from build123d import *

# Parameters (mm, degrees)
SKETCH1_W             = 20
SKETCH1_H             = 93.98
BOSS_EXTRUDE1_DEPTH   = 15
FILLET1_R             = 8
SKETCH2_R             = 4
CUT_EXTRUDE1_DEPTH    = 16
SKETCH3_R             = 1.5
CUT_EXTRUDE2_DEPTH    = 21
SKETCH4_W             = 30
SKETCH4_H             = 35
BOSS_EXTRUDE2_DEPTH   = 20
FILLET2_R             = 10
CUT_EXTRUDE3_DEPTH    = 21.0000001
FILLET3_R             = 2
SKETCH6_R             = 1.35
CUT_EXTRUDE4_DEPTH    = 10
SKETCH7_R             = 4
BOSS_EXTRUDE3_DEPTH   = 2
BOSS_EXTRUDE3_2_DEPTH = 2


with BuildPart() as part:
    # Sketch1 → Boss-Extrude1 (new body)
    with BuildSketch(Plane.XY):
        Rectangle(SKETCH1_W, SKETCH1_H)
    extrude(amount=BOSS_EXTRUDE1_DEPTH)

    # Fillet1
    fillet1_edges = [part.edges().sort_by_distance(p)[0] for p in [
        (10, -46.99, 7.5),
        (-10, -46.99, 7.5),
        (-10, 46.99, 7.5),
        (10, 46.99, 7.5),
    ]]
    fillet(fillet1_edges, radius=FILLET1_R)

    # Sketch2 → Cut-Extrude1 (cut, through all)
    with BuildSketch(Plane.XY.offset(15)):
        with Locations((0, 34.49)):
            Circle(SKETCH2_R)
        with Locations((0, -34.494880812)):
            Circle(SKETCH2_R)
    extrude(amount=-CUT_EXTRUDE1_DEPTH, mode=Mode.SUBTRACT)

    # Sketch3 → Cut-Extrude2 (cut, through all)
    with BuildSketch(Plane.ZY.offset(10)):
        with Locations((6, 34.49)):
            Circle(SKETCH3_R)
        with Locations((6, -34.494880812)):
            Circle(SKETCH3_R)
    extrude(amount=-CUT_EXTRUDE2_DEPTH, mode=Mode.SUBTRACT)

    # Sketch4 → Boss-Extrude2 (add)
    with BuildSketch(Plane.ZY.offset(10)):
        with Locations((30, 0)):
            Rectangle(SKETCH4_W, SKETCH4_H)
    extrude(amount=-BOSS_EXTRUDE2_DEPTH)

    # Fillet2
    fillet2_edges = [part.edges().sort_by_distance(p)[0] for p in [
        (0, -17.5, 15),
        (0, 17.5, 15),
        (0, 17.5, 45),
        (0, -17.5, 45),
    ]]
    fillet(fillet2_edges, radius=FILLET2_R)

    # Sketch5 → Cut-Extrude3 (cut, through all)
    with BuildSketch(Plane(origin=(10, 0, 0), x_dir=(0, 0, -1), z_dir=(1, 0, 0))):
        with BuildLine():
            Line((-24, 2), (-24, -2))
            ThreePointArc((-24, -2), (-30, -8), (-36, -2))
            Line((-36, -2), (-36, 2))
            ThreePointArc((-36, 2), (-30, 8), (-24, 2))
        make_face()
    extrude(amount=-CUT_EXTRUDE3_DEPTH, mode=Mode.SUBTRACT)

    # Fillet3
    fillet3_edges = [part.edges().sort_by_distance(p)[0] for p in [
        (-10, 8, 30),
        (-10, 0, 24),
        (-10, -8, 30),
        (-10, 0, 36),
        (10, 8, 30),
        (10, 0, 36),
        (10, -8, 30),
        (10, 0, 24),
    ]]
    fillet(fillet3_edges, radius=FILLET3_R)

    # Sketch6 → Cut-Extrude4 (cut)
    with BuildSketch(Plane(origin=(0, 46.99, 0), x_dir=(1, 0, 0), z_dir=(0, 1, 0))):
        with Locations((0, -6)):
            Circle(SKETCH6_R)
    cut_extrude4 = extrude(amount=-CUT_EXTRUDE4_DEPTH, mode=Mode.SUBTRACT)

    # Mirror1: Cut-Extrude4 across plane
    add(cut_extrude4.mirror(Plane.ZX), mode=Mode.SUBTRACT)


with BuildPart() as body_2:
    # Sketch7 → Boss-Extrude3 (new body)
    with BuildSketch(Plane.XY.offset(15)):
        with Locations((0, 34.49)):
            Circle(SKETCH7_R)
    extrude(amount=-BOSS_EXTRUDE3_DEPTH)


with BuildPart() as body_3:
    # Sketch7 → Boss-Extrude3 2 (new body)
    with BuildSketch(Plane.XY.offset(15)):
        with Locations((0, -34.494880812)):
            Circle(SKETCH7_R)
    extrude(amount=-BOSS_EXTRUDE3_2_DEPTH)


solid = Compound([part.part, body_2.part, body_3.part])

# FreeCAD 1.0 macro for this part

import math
import FreeCAD as App
import Part
import Sketcher


def edges_at(feature, points):
    """Names of the edges that pass closest to the given points."""
    edges = feature.Shape.Edges
    near = lambda p: min(range(len(edges)), key=lambda i: edges[i].distToShape(Part.Vertex(*p))[0])
    return sorted({f"Edge{near(p) + 1}" for p in points})

doc = App.newDocument("Part")
body = doc.addObject("PartDesign::Body", "Body")

# Sketch on XY plane
sketch1 = body.newObject("Sketcher::SketchObject", "Sketch")
sketch1.AttachmentSupport = (doc.getObject("XY_Plane"), [""])
sketch1.MapMode = "FlatFace"
sketch1.addGeometry([
    Part.LineSegment(App.Vector(-10, 47, 0), App.Vector(-10, -47, 0)),
    Part.LineSegment(App.Vector(-10, -47, 0), App.Vector(10, -47, 0)),
    Part.LineSegment(App.Vector(10, -47, 0), App.Vector(10, 47, 0)),
    Part.LineSegment(App.Vector(10, 47, 0), App.Vector(-10, 47, 0)),
], False)
sketch1.addConstraint([
    Sketcher.Constraint("Coincident", 0, 2, 1, 1),
    Sketcher.Constraint("Coincident", 1, 2, 2, 1),
    Sketcher.Constraint("Coincident", 2, 2, 3, 1),
    Sketcher.Constraint("Coincident", 3, 2, 0, 1),
    Sketcher.Constraint("Vertical", 0),
    Sketcher.Constraint("Horizontal", 1),
    Sketcher.Constraint("Vertical", 2),
    Sketcher.Constraint("Horizontal", 3),
    Sketcher.Constraint("Symmetric", 0, 2, 2, 2, -1, 1),
    Sketcher.Constraint("DistanceX", 1, 1, 1, 2, 20.0),
    Sketcher.Constraint("DistanceY", 0, 2, 0, 1, 93.98),
])
pad1 = body.newObject("PartDesign::Pad", "Pad")
pad1.Profile = sketch1
pad1.Length = 15
doc.recompute()

fillet = body.newObject("PartDesign::Fillet", "Fillet")
fillet.Base = (pad1, edges_at(pad1, [
    (10, -46.99, 7.5),
    (-10, -46.99, 7.5),
    (-10, 46.99, 7.5),
    (10, 46.99, 7.5),
]))
fillet.Radius = 8

# Sketch on XY plane
sketch2 = body.newObject("Sketcher::SketchObject", "Sketch001")
sketch2.AttachmentSupport = (doc.getObject("XY_Plane"), [""])
sketch2.MapMode = "FlatFace"
sketch2.AttachmentOffset = App.Placement(App.Vector(0, 0, 15), App.Rotation())
sketch2.addGeometry([
    Part.Circle(App.Vector(0, 34.5, 0), App.Vector(0, 0, 1), 4),
    Part.Circle(App.Vector(0, -34.5, 0), App.Vector(0, 0, 1), 4),
], False)
sketch2.addConstraint([
    Sketcher.Constraint("Equal", 0, 1),
    Sketcher.Constraint("PointOnObject", 0, 3, -2),
    Sketcher.Constraint("PointOnObject", 1, 3, -2),
    Sketcher.Constraint("Diameter", 0, 8.0),
    Sketcher.Constraint("DistanceY", -1, 1, 0, 3, 34.49),
    Sketcher.Constraint("DistanceY", 1, 3, -1, 1, 34.494881),
])
pocket1 = body.newObject("PartDesign::Pocket", "Pocket")
pocket1.Profile = sketch2
pocket1.Type = "ThroughAll"

# Sketch on YZ plane
sketch3 = body.newObject("Sketcher::SketchObject", "Sketch002")
sketch3.AttachmentSupport = (doc.getObject("YZ_Plane"), [""])
sketch3.MapMode = "FlatFace"
sketch3.AttachmentOffset = App.Placement(App.Vector(0, 0, -10), App.Rotation())
sketch3.addGeometry([
    Part.Circle(App.Vector(34.5, 6, 0), App.Vector(0, 0, 1), 1.5),
    Part.Circle(App.Vector(-34.5, 6, 0), App.Vector(0, 0, 1), 1.5),
], False)
sketch3.addConstraint([
    Sketcher.Constraint("Equal", 0, 1),
    Sketcher.Constraint("Horizontal", 0, 3, 1, 3),
    Sketcher.Constraint("Diameter", 0, 3.0),
    Sketcher.Constraint("DistanceY", -1, 1, 0, 3, 6.0),
    Sketcher.Constraint("DistanceX", -1, 1, 0, 3, 34.49),
    Sketcher.Constraint("DistanceX", 1, 3, -1, 1, 34.494881),
])
pocket2 = body.newObject("PartDesign::Pocket", "Pocket001")
pocket2.Profile = sketch3
pocket2.Type = "ThroughAll"
pocket2.Reversed = True

# Sketch on YZ plane
sketch4 = body.newObject("Sketcher::SketchObject", "Sketch003")
sketch4.AttachmentSupport = (doc.getObject("YZ_Plane"), [""])
sketch4.MapMode = "FlatFace"
sketch4.AttachmentOffset = App.Placement(App.Vector(0, 0, -10), App.Rotation())
sketch4.addGeometry([
    Part.LineSegment(App.Vector(18, 15, 0), App.Vector(-18, 15, 0)),
    Part.LineSegment(App.Vector(-18, 15, 0), App.Vector(-18, 45, 0)),
    Part.LineSegment(App.Vector(-18, 45, 0), App.Vector(18, 45, 0)),
    Part.LineSegment(App.Vector(18, 45, 0), App.Vector(18, 15, 0)),
], False)
sketch4.addConstraint([
    Sketcher.Constraint("Coincident", 0, 2, 1, 1),
    Sketcher.Constraint("Coincident", 1, 2, 2, 1),
    Sketcher.Constraint("Coincident", 2, 2, 3, 1),
    Sketcher.Constraint("Coincident", 3, 2, 0, 1),
    Sketcher.Constraint("Horizontal", 0),
    Sketcher.Constraint("Vertical", 1),
    Sketcher.Constraint("Horizontal", 2),
    Sketcher.Constraint("Vertical", 3),
    Sketcher.Constraint("DistanceX", 0, 2, 0, 1, 35.0),
    Sketcher.Constraint("DistanceY", 1, 1, 1, 2, 30.0),
    Sketcher.Constraint("DistanceY", -1, 1, 0, 2, 15.0),
    Sketcher.Constraint("DistanceX", 0, 2, -1, 1, 17.5),
])
pad2 = body.newObject("PartDesign::Pad", "Pad001")
pad2.Profile = sketch4
pad2.Length = 20
doc.recompute()

fillet2 = body.newObject("PartDesign::Fillet", "Fillet001")
fillet2.Base = (pad2, edges_at(pad2, [
    (0, -17.5, 15),
    (0, 17.5, 15),
    (0, 17.5, 45),
    (0, -17.5, 45),
]))
fillet2.Radius = 10

# Sketch on YZ plane
sketch5 = body.newObject("Sketcher::SketchObject", "Sketch004")
sketch5.AttachmentSupport = (doc.getObject("YZ_Plane"), [""])
sketch5.MapMode = "FlatFace"
sketch5.AttachmentOffset = App.Placement(App.Vector(0, 0, 10), App.Rotation())
sketch5.addGeometry([
    Part.LineSegment(App.Vector(-2, 24, 0), App.Vector(2, 24, 0)),
    Part.ArcOfCircle(Part.Circle(App.Vector(2, 30, 0), App.Vector(0, 0, 1), 6), math.radians(-90), math.radians(90)),
    Part.LineSegment(App.Vector(2, 36, 0), App.Vector(-2, 36, 0)),
    Part.ArcOfCircle(Part.Circle(App.Vector(-2, 30, 0), App.Vector(0, 0, 1), 6), math.radians(90), math.radians(270)),
], False)
sketch5.addConstraint([
    Sketcher.Constraint("Tangent", 0, 2, 1, 1),
    Sketcher.Constraint("Tangent", 1, 2, 2, 1),
    Sketcher.Constraint("Tangent", 2, 2, 3, 1),
    Sketcher.Constraint("Tangent", 3, 2, 0, 1),
    Sketcher.Constraint("Horizontal", 0),
    Sketcher.Constraint("Horizontal", 2),
    Sketcher.Constraint("Radius", 1, 6.0),
    Sketcher.Constraint("DistanceX", 0, 1, 0, 2, 4.0),
    Sketcher.Constraint("DistanceX", -1, 1, 1, 3, 2.0),
    Sketcher.Constraint("DistanceY", -1, 1, 1, 3, 30.0),
])
pocket3 = body.newObject("PartDesign::Pocket", "Pocket002")
pocket3.Profile = sketch5
pocket3.Type = "ThroughAll"
doc.recompute()

fillet3 = body.newObject("PartDesign::Fillet", "Fillet002")
fillet3.Base = (pocket3, edges_at(pocket3, [
    (-10, 8, 30),
    (-10, 0, 24),
    (-10, -8, 30),
    (-10, 0, 36),
    (10, 8, 30),
    (10, 0, 36),
    (10, -8, 30),
    (10, 0, 24),
]))
fillet3.Radius = 2

# Sketch on XZ plane
sketch6 = body.newObject("Sketcher::SketchObject", "Sketch005")
sketch6.AttachmentSupport = (doc.getObject("XZ_Plane"), [""])
sketch6.MapMode = "FlatFace"
sketch6.AttachmentOffset = App.Placement(App.Vector(0, 0, -46.99), App.Rotation())
sketch6.addGeometry(Part.Circle(App.Vector(0, 6, 0), App.Vector(0, 0, 1), 1.4), False)
sketch6.addConstraint([
    Sketcher.Constraint("PointOnObject", 0, 3, -2),
    Sketcher.Constraint("Diameter", 0, 2.7),
    Sketcher.Constraint("DistanceY", -1, 1, 0, 3, 6.0),
])
pocket4 = body.newObject("PartDesign::Pocket", "Pocket003")
pocket4.Profile = sketch6
pocket4.Length = 10
pocket4.Reversed = True
doc.recompute()

mirrored = body.newObject("PartDesign::Mirrored", "Mirrored")
mirrored.Originals = [pocket4]
mirrored.MirrorPlane = (doc.getObject("XZ_Plane"), [""])
body.Tip = mirrored
body2 = doc.addObject("PartDesign::Body", "Body001")

# Sketch on XY plane
sketch7 = body2.newObject("Sketcher::SketchObject", "Sketch006")
sketch7.AttachmentSupport = (doc.getObject("XY_Plane001"), [""])
sketch7.MapMode = "FlatFace"
sketch7.AttachmentOffset = App.Placement(App.Vector(0, 0, 15), App.Rotation())
sketch7.addGeometry(Part.Circle(App.Vector(0, 34.5, 0), App.Vector(0, 0, 1), 4), False)
sketch7.addConstraint([
    Sketcher.Constraint("PointOnObject", 0, 3, -2),
    Sketcher.Constraint("Diameter", 0, 8.0),
    Sketcher.Constraint("DistanceY", -1, 1, 0, 3, 34.49),
])
pad3 = body2.newObject("PartDesign::Pad", "Pad002")
pad3.Profile = sketch7
pad3.Length = 2
pad3.Reversed = True
body3 = doc.addObject("PartDesign::Body", "Body002")

# Sketch on XY plane
sketch8 = body3.newObject("Sketcher::SketchObject", "Sketch007")
sketch8.AttachmentSupport = (doc.getObject("XY_Plane002"), [""])
sketch8.MapMode = "FlatFace"
sketch8.AttachmentOffset = App.Placement(App.Vector(0, 0, 15), App.Rotation())
sketch8.addGeometry(Part.Circle(App.Vector(0, -34.5, 0), App.Vector(0, 0, 1), 4), False)
sketch8.addConstraint([
    Sketcher.Constraint("PointOnObject", 0, 3, -2),
    Sketcher.Constraint("Diameter", 0, 8.0),
    Sketcher.Constraint("DistanceY", 0, 3, -1, 1, 34.494881),
])
pad4 = body3.newObject("PartDesign::Pad", "Pad003")
pad4.Profile = sketch8
pad4.Length = 2
pad4.Reversed = True

doc.recompute()
